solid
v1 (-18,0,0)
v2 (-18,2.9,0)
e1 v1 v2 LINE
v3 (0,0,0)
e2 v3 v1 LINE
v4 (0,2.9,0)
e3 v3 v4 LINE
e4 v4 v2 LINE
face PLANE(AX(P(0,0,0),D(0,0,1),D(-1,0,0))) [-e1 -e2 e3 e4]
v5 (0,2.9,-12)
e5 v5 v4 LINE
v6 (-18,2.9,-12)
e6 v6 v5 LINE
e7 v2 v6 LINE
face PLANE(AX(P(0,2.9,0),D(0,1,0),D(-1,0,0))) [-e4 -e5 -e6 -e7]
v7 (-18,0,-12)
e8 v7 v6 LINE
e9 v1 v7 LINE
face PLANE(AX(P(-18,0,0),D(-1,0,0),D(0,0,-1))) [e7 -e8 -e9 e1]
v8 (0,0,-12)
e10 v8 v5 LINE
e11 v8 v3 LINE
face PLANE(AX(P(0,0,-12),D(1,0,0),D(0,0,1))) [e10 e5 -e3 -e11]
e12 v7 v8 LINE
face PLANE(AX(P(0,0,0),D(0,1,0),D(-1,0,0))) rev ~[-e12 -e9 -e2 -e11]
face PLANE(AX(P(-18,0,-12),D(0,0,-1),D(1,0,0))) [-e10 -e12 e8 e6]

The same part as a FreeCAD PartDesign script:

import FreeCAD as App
import Part
import Sketcher


def add_polygon(sketch, points):
    """Adds a closed chain of lines whose ends are joined by coincident constraints."""
    first, n = sketch.GeometryCount, len(points)
    for a, b in zip(points, points[1:] + points[:1]):
        sketch.addGeometry(Part.LineSegment(App.Vector(*a, 0), App.Vector(*b, 0)), False)
    for i in range(n):
        sketch.addConstraint(Sketcher.Constraint("Coincident", first + i, 2, first + (i + 1) % n, 1))

doc = App.newDocument("Part")
body = doc.addObject("PartDesign::Body", "Body")

sketch1 = body.newObject("Sketcher::SketchObject", "Sketch")
sketch1.AttachmentSupport = (doc.getObject("XZ_Plane"), [""])
sketch1.MapMode = "FlatFace"
add_polygon(sketch1, [(-18, 0), (0, 0), (0, -12), (-18, -12)])
sketch1.addConstraint(Sketcher.Constraint("Horizontal", 0))
sketch1.addConstraint(Sketcher.Constraint("Vertical", 1))
sketch1.addConstraint(Sketcher.Constraint("Horizontal", 2))
sketch1.addConstraint(Sketcher.Constraint("Vertical", 3))
sketch1.addConstraint(Sketcher.Constraint("Coincident", 0, 2, -1, 1))
sketch1.addConstraint(Sketcher.Constraint("DistanceX", 0, 1, 0, 2, 18.0))
sketch1.addConstraint(Sketcher.Constraint("DistanceY", 1, 2, 1, 1, 12.0))
pad1 = body.newObject("PartDesign::Pad", "Pad")
pad1.Profile = sketch1
pad1.Length = 2.9
pad1.Reversed = True

doc.recompute()
